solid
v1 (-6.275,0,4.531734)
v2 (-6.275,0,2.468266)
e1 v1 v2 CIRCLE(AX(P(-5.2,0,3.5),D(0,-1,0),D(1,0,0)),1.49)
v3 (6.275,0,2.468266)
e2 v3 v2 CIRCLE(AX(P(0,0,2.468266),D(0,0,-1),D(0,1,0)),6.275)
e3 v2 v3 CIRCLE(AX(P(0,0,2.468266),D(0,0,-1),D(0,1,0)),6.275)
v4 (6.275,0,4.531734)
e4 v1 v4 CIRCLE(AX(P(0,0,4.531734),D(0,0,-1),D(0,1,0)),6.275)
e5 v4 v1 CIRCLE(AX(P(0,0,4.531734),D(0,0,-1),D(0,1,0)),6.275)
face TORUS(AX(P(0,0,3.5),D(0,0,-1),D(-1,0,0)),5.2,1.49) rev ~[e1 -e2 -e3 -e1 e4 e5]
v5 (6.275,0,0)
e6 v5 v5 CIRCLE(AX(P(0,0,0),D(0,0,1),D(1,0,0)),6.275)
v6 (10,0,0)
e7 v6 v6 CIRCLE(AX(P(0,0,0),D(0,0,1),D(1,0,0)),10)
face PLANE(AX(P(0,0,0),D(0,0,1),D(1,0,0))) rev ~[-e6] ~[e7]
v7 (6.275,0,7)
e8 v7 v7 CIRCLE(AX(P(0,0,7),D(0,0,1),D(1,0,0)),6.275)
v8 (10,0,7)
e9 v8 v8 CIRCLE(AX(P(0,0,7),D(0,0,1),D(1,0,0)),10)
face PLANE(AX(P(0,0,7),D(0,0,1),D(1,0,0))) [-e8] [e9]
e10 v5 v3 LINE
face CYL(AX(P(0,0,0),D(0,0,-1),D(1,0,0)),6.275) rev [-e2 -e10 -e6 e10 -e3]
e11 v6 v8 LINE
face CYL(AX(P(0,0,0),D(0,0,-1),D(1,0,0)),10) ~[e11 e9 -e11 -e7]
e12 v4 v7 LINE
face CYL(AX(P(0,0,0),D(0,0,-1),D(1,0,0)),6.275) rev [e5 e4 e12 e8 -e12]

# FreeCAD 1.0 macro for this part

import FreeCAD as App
import Part
import Sketcher
from FreeCAD import Vector

doc = App.newDocument("Part")
params = doc.addObject("Spreadsheet::Sheet", "Params")
for row, (alias, value) in enumerate([
    ("sketch1_diameter", "20 mm"),
    ("sketch1_diameter2", "12.55 mm"),
    ("pad1_length", "7 mm"),
    ("sketch2_diameter", "2.98 mm"),
    ("groove_angle", "360 deg"),
], start=1):
    params.set(f"A{row}", alias)
    params.set(f"B{row}", "=" + value)
    params.setAlias(f"B{row}", alias)

body = doc.addObject("PartDesign::Body", "Body")

# Sketch on XY plane
sketch1 = body.newObject("Sketcher::SketchObject", "Sketch")
sketch1.AttachmentSupport = (doc.getObject("XY_Plane"), [""])
sketch1.MapMode = "FlatFace"
sketch1.addGeometry([
    Part.Circle(Vector(0, 0, 0), Vector(0, 0, 1), 10),
    Part.Circle(Vector(0, 0, 0), Vector(0, 0, 1), 6),
], False)
sketch1.addConstraint([
    Sketcher.Constraint("Coincident", 0, 3, -1, 1),
    Sketcher.Constraint("Coincident", 1, 3, -1, 1),
    Sketcher.Constraint("Diameter", 0, 20.0),
    Sketcher.Constraint("Diameter", 1, 12.55),
])
sketch1.setExpression("Constraints[2]", "Params.sketch1_diameter")
sketch1.setExpression("Constraints[3]", "Params.sketch1_diameter2")
pad1 = body.newObject("PartDesign::Pad", "Pad")
pad1.Profile = sketch1
pad1.setExpression("Length", "Params.pad1_length")

# Sketch on XZ plane
sketch2 = body.newObject("Sketcher::SketchObject", "Sketch001")
sketch2.AttachmentSupport = (doc.getObject("XZ_Plane"), [""])
sketch2.MapMode = "FlatFace"
sketch2.addGeometry(Part.Circle(Vector(-5.2, 3.5, 0), Vector(0, 0, 1), 1.5), False)
sketch2.addConstraint([
    Sketcher.Constraint("Diameter", 0, 2.98),
    Sketcher.Constraint("DistanceX", 0, 3, -1, 1, 5.2),
    Sketcher.Constraint("DistanceY", -1, 1, 0, 3, 3.5),
])
sketch2.setExpression("Constraints[0]", "Params.sketch2_diameter")
groove = body.newObject("PartDesign::Groove", "Groove")
groove.Profile = sketch2
groove.ReferenceAxis = (sketch2, ["V_Axis"])
groove.setExpression("Angle", "Params.groove_angle")

doc.recompute()
